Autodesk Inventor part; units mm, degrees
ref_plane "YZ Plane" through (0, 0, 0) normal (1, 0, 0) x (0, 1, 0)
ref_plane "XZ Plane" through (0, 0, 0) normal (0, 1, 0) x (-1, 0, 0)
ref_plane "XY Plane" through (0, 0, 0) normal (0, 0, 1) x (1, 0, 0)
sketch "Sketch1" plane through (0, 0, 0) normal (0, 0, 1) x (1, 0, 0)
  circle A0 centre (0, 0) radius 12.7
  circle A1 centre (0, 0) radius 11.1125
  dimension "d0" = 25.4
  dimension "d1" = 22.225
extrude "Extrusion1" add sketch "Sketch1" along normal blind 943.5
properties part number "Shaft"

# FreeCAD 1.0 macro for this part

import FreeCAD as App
import Part
import Sketcher
from FreeCAD import Vector
Q = App.Units.Quantity

doc = App.newDocument("Part")
body = doc.addObject("PartDesign::Body", "Body")

# Sketch on XY plane
sketch1 = body.newObject("Sketcher::SketchObject", "Sketch")
sketch1.AttachmentSupport = (doc.getObject("XY_Plane"), [""])
sketch1.MapMode = "FlatFace"
sketch1.addGeometry([
    Part.Circle(Vector(0, 0, 0), Vector(0, 0, 1), 13),
    Part.Circle(Vector(0, 0, 0), Vector(0, 0, 1), 11),
], False)
sketch1.addConstraint([
    Sketcher.Constraint("Coincident", 0, 3, -1, 1),
    Sketcher.Constraint("Coincident", 1, 3, -1, 1),
    Sketcher.Constraint("Diameter", 0, Q("1 in")),
    Sketcher.Constraint("Diameter", 1, Q("0.875 in")),
])
pad1 = body.newObject("PartDesign::Pad", "Pad")
pad1.Profile = sketch1
pad1.Length = 943.5

doc.recompute()
